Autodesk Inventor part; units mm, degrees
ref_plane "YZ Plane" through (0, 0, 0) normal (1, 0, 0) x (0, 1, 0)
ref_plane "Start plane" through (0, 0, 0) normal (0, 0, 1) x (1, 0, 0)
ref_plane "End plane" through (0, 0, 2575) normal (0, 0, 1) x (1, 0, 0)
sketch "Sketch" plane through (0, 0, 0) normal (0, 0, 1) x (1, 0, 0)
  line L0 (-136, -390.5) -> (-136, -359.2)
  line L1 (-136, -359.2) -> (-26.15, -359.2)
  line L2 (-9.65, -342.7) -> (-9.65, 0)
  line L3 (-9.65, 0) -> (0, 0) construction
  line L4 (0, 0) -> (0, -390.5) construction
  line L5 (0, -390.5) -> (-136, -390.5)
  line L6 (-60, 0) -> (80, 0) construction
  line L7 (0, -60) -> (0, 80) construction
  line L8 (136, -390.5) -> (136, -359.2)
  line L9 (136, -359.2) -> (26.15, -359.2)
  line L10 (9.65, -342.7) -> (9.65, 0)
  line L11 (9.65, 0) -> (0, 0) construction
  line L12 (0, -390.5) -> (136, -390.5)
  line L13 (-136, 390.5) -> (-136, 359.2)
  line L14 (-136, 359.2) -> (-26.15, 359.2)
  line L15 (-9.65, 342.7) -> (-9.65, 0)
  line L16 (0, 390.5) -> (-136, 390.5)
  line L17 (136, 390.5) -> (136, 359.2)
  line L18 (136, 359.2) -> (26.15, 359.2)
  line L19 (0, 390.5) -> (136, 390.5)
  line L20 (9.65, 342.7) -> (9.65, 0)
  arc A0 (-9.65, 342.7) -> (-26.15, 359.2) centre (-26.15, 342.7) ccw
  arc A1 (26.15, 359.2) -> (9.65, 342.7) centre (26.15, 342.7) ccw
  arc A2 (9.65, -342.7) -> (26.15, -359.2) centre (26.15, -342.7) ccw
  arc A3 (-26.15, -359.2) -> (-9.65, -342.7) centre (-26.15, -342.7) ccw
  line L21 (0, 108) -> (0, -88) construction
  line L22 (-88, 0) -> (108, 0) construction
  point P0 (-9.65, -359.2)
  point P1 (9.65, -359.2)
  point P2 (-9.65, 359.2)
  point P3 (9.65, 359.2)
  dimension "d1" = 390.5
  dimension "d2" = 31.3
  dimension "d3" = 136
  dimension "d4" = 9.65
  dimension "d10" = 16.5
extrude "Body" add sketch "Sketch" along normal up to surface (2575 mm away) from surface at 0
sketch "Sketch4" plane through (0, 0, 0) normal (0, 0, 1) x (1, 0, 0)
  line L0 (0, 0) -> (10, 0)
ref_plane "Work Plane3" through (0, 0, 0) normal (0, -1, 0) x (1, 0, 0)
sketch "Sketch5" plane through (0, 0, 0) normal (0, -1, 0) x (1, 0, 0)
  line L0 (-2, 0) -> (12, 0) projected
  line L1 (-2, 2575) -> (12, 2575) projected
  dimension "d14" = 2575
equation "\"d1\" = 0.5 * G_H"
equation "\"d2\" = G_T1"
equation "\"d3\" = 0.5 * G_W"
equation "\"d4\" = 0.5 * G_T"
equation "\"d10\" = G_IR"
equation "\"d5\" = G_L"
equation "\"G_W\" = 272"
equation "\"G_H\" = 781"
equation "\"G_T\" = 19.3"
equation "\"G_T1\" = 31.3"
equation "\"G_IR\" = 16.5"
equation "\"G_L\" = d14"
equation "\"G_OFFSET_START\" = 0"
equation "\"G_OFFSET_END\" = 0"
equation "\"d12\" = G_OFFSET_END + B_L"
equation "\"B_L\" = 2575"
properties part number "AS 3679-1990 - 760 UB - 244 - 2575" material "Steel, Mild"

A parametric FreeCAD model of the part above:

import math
import FreeCAD as App
import Part
import Sketcher
from FreeCAD import Vector

doc = App.newDocument("Part")
params = doc.addObject("Spreadsheet::Sheet", "Params")
for row, (alias, value) in enumerate([
    ("sketch1_radius", "16.5 mm"),
    ("sketch1_height", "31.3 mm"),
    ("pad1_length", "2575 mm"),
], start=1):
    params.set(f"A{row}", alias)
    params.set(f"B{row}", "=" + value)
    params.setAlias(f"B{row}", alias)

body = doc.addObject("PartDesign::Body", "Body")

# Sketch on XY plane
sketch1 = body.newObject("Sketcher::SketchObject", "Sketch")
sketch1.AttachmentSupport = (doc.getObject("XY_Plane"), [""])
sketch1.MapMode = "FlatFace"
sketch1.addGeometry([
    Part.LineSegment(Vector(-136, -359.2, 0), Vector(-136, -390.5, 0)),  # 0
    Part.LineSegment(Vector(-136, -390.5, 0), Vector(136, -390.5, 0)),  # 1
    Part.LineSegment(Vector(136, -390.5, 0), Vector(136, -359.2, 0)),  # 2
    Part.LineSegment(Vector(136, -359.2, 0), Vector(26.15, -359.2, 0)),  # 3
    Part.ArcOfCircle(Part.Circle(Vector(26.15, -342.7, 0), Vector(0, 0, 1), 16.5), math.radians(180), math.radians(270)),  # 4
    Part.LineSegment(Vector(9.65, -342.7, 0), Vector(9.65, 342.7, 0)),  # 5
    Part.ArcOfCircle(Part.Circle(Vector(26.15, 342.7, 0), Vector(0, 0, 1), 16.5), math.radians(90), math.radians(180)),  # 6
    Part.LineSegment(Vector(26.15, 359.2, 0), Vector(136, 359.2, 0)),  # 7
    Part.LineSegment(Vector(136, 359.2, 0), Vector(136, 390.5, 0)),  # 8
    Part.LineSegment(Vector(136, 390.5, 0), Vector(-136, 390.5, 0)),  # 9
    Part.LineSegment(Vector(-136, 390.5, 0), Vector(-136, 359.2, 0)),  # 10
    Part.LineSegment(Vector(-136, 359.2, 0), Vector(-26.15, 359.2, 0)),  # 11
    Part.ArcOfCircle(Part.Circle(Vector(-26.15, 342.7, 0), Vector(0, 0, 1), 16.5), math.radians(0), math.radians(90)),  # 12
    Part.LineSegment(Vector(-9.65, 342.7, 0), Vector(-9.65, -342.7, 0)),  # 13
    Part.ArcOfCircle(Part.Circle(Vector(-26.15, -342.7, 0), Vector(0, 0, 1), 16.5), math.radians(-90), math.radians(0)),  # 14
    Part.LineSegment(Vector(-26.15, -359.2, 0), Vector(-136, -359.2, 0)),  # 15
], False)
sketch1.addConstraint([
    Sketcher.Constraint("Coincident", 0, 2, 1, 1),
    Sketcher.Constraint("Coincident", 1, 2, 2, 1),
    Sketcher.Constraint("Coincident", 2, 2, 3, 1),
    Sketcher.Constraint("Tangent", 3, 2, 4, 2),
    Sketcher.Constraint("Tangent", 4, 1, 5, 1),
    Sketcher.Constraint("Tangent", 5, 2, 6, 2),
    Sketcher.Constraint("Tangent", 6, 1, 7, 1),
    Sketcher.Constraint("Coincident", 7, 2, 8, 1),
    Sketcher.Constraint("Coincident", 8, 2, 9, 1),
    Sketcher.Constraint("Coincident", 9, 2, 10, 1),
    Sketcher.Constraint("Coincident", 10, 2, 11, 1),
    Sketcher.Constraint("Tangent", 11, 2, 12, 2),
    Sketcher.Constraint("Tangent", 12, 1, 13, 1),
    Sketcher.Constraint("Tangent", 13, 2, 14, 2),
    Sketcher.Constraint("Tangent", 14, 1, 15, 1),
    Sketcher.Constraint("Coincident", 15, 2, 0, 1),
    Sketcher.Constraint("Vertical", 0),
    Sketcher.Constraint("Horizontal", 1),
    Sketcher.Constraint("Vertical", 2),
    Sketcher.Constraint("Horizontal", 3),
    Sketcher.Constraint("Vertical", 5),
    Sketcher.Constraint("Horizontal", 7),
    Sketcher.Constraint("Vertical", 8),
    Sketcher.Constraint("Horizontal", 9),
    Sketcher.Constraint("Vertical", 10),
    Sketcher.Constraint("Horizontal", 11),
    Sketcher.Constraint("Vertical", 13),
    Sketcher.Constraint("Horizontal", 15),
    Sketcher.Constraint("Equal", 4, 6),
    Sketcher.Constraint("Equal", 6, 12),
    Sketcher.Constraint("Equal", 12, 14),
    Sketcher.Constraint("Symmetric", 4, 3, 12, 3, -1, 1),
    Sketcher.Constraint("Symmetric", 0, 2, 8, 2, -1, 1),
    Sketcher.Constraint("Symmetric", 7, 2, 10, 2, -2),
    Sketcher.Constraint("Symmetric", 2, 2, 15, 2, -2),
    Sketcher.Constraint("Radius", 4, 16.5),
    Sketcher.Constraint("DistanceY", 0, 2, 0, 1, 31.3),
    Sketcher.Constraint("DistanceX", 0, 2, -1, 1, 136.0),
    Sketcher.Constraint("DistanceY", 0, 2, -1, 1, 390.5),
    Sketcher.Constraint("DistanceX", -1, 1, 4, 1, 9.65),
])
sketch1.setExpression("Constraints[35]", "Params.sketch1_radius")
sketch1.setExpression("Constraints[36]", "Params.sketch1_height")
pad1 = body.newObject("PartDesign::Pad", "Pad")
pad1.Profile = sketch1
pad1.setExpression("Length", "Params.pad1_length")

doc.recompute()
